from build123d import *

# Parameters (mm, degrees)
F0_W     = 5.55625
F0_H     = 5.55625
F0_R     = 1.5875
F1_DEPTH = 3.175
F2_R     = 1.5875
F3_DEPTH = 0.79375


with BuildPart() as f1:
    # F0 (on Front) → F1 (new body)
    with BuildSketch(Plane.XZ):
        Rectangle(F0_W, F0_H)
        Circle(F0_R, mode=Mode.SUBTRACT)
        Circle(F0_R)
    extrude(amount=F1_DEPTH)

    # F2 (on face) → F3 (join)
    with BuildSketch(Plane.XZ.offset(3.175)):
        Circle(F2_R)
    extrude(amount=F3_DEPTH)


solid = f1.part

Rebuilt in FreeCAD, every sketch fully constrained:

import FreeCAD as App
import Part
import Sketcher

V = App.Vector
Q = App.Units.Quantity

doc = App.newDocument("Part")
body = doc.addObject("PartDesign::Body", "Body")

# Sketch on XZ plane
sketch1 = body.newObject("Sketcher::SketchObject", "Sketch")
sketch1.AttachmentSupport = (doc.getObject("XZ_Plane"), [""])
sketch1.MapMode = "FlatFace"
sketch1.addGeometry(Part.LineSegment(V(-2.778125, 2.778125, 0), V(-2.778125, -2.778125, 0)), False)
sketch1.addGeometry(Part.LineSegment(V(-2.778125, -2.778125, 0), V(2.778125, -2.778125, 0)), False)
sketch1.addGeometry(Part.LineSegment(V(2.778125, -2.778125, 0), V(2.778125, 2.778125, 0)), False)
sketch1.addGeometry(Part.LineSegment(V(2.778125, 2.778125, 0), V(-2.778125, 2.778125, 0)), False)
sketch1.addConstraint(Sketcher.Constraint("Coincident", 0, 2, 1, 1))
sketch1.addConstraint(Sketcher.Constraint("Coincident", 1, 2, 2, 1))
sketch1.addConstraint(Sketcher.Constraint("Coincident", 2, 2, 3, 1))
sketch1.addConstraint(Sketcher.Constraint("Coincident", 3, 2, 0, 1))
sketch1.addConstraint(Sketcher.Constraint("Vertical", 0))
sketch1.addConstraint(Sketcher.Constraint("Horizontal", 1))
sketch1.addConstraint(Sketcher.Constraint("Vertical", 2))
sketch1.addConstraint(Sketcher.Constraint("Horizontal", 3))
sketch1.addConstraint(Sketcher.Constraint("Symmetric", 0, 2, 2, 2, -1, 1))
sketch1.addConstraint(Sketcher.Constraint("Equal", 3, 0))
sketch1.addConstraint(Sketcher.Constraint("DistanceX", 1, 1, 1, 2, Q("0.21875 in")))
pad1 = body.newObject("PartDesign::Pad", "Pad")
pad1.Profile = sketch1
pad1.Length = Q("0.125 in")

# Sketch on XZ plane
sketch2 = body.newObject("Sketcher::SketchObject", "Sketch001")
sketch2.AttachmentSupport = (doc.getObject("XZ_Plane"), [""])
sketch2.MapMode = "FlatFace"
sketch2.AttachmentOffset = App.Placement(V(0, 0, 0.125 * 25.4), App.Rotation())
sketch2.addGeometry(Part.Circle(V(0, 0, 0), V(0, 0, 1), 1.5875), False)
sketch2.addConstraint(Sketcher.Constraint("Coincident", 0, 3, -1, 1))
sketch2.addConstraint(Sketcher.Constraint("Diameter", 0, Q("0.125 in")))
pad2 = body.newObject("PartDesign::Pad", "Pad001")
pad2.Profile = sketch2
pad2.Length = Q("0.03125 in")

doc.recompute()
